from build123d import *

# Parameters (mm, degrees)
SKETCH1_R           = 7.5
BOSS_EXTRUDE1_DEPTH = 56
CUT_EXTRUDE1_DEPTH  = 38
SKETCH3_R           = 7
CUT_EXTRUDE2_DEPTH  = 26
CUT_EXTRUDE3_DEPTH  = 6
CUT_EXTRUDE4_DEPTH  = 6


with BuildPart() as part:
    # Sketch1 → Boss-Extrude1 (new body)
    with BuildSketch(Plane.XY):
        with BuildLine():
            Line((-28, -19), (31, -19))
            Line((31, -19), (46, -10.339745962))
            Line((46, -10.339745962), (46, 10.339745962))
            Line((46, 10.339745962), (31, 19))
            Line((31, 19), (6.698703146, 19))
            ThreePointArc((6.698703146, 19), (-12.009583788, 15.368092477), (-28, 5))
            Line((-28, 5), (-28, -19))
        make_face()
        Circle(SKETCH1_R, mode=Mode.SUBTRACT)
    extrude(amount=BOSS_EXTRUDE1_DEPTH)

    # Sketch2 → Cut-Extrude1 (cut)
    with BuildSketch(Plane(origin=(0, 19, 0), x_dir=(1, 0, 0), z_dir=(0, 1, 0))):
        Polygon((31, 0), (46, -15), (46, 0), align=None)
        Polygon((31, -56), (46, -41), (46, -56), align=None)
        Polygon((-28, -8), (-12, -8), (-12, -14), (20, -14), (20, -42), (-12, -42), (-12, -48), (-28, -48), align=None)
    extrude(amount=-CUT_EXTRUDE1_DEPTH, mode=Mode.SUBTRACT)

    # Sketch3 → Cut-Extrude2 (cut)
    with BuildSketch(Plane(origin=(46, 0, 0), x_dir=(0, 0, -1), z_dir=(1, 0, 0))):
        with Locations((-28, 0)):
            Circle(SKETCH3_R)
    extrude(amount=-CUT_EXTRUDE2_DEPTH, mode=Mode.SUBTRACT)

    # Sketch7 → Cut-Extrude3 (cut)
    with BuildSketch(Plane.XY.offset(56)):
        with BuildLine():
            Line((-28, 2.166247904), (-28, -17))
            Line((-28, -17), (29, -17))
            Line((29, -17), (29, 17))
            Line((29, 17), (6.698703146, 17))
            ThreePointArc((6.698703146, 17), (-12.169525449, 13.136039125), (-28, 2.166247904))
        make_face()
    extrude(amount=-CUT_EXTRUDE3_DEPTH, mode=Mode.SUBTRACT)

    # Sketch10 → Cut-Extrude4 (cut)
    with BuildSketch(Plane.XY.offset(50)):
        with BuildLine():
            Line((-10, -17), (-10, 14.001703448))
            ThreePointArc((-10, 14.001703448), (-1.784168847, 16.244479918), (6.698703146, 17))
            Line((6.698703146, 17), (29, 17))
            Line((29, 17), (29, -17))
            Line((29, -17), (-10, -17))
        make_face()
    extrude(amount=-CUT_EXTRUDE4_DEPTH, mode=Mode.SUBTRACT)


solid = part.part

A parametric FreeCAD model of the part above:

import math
import FreeCAD as App
import Part
import Sketcher

V = App.Vector
Q = App.Units.Quantity


def add_polygon(sketch, points):
    """Adds a closed chain of lines whose ends are joined by coincident constraints."""
    first, n = sketch.GeometryCount, len(points)
    for a, b in zip(points, points[1:] + points[:1]):
        sketch.addGeometry(Part.LineSegment(App.Vector(*a, 0), App.Vector(*b, 0)), False)
    for i in range(n):
        sketch.addConstraint(Sketcher.Constraint("Coincident", first + i, 2, first + (i + 1) % n, 1))

doc = App.newDocument("Part")
body = doc.addObject("PartDesign::Body", "Body")

# Sketch on XY plane
sketch1 = body.newObject("Sketcher::SketchObject", "Sketch")
sketch1.AttachmentSupport = (doc.getObject("XY_Plane"), [""])
sketch1.MapMode = "FlatFace"
sketch1.addGeometry([
    Part.LineSegment(V(-28, -19, 0), V(31, -19, 0)),  # 0
    Part.LineSegment(V(31, -19, 0), V(46, -10.339746, 0)),  # 1
    Part.LineSegment(V(46, -10.339746, 0), V(46, 10.339746, 0)),  # 2
    Part.LineSegment(V(46, 10.339746, 0), V(31, 19, 0)),  # 3
    Part.LineSegment(V(31, 19, 0), V(6.698703, 19, 0)),  # 4
    Part.ArcOfCircle(Part.Circle(V(6.698703, -31, 0), V(0, 0, 1), 50), math.radians(90), math.radians(133.94552)),  # 5
    Part.LineSegment(V(-28, 5, 0), V(-28, -19, 0)),  # 6
    Part.Circle(V(0, 0, 0), V(0, 0, 1), 7.5),  # 7
], False)
sketch1.addConstraint([
    Sketcher.Constraint("Coincident", 0, 2, 1, 1),
    Sketcher.Constraint("Coincident", 1, 2, 2, 1),
    Sketcher.Constraint("Coincident", 2, 2, 3, 1),
    Sketcher.Constraint("Coincident", 3, 2, 4, 1),
    Sketcher.Constraint("Tangent", 4, 2, 5, 1),
    Sketcher.Constraint("Coincident", 5, 2, 6, 1),
    Sketcher.Constraint("Coincident", 6, 2, 0, 1),
    Sketcher.Constraint("Horizontal", 0),
    Sketcher.Constraint("Vertical", 2),
    Sketcher.Constraint("Horizontal", 4),
    Sketcher.Constraint("Vertical", 6),
    Sketcher.Constraint("Coincident", 7, 3, -1, 1),
    Sketcher.Constraint("Symmetric", 0, 2, 3, 2, -1),
    Sketcher.Constraint("Equal", 1, 3),
    Sketcher.Constraint("Diameter", 7, 15.0),
    Sketcher.Constraint("Radius", 5, 50.0),
    Sketcher.Constraint("DistanceX", 0, 1, 0, 2, 59.0),
    Sketcher.Constraint("DistanceY", 6, 2, 6, 1, 24.0),
    Sketcher.Constraint("Angle", 1, Q("30 deg")),
    Sketcher.Constraint("DistanceY", 5, 3, -1, 1, 31.0),
    Sketcher.Constraint("DistanceX", -1, 1, 0, 2, 31.0),
    Sketcher.Constraint("DistanceX", -1, 1, 1, 2, 46.0),
])
pad1 = body.newObject("PartDesign::Pad", "Pad")
pad1.Profile = sketch1
pad1.Length = 56

# Sketch on XZ plane
sketch2 = body.newObject("Sketcher::SketchObject", "Sketch001")
sketch2.AttachmentSupport = (doc.getObject("XZ_Plane"), [""])
sketch2.MapMode = "FlatFace"
sketch2.AttachmentOffset = App.Placement(V(0, 0, -19), App.Rotation())
add_polygon(sketch2, [(31, 0), (46, 15), (46, 0)])  # lines 0-2
add_polygon(sketch2, [(46, 41), (31, 56), (46, 56)])  # lines 3-5
add_polygon(sketch2, [(-12, 8), (-28, 8), (-28, 48), (-12, 48), (-12, 42), (20, 42), (20, 14), (-12, 14)])  # lines 6-13
sketch2.addConstraint([
    Sketcher.Constraint("Vertical", 1),
    Sketcher.Constraint("Horizontal", 2),
    Sketcher.Constraint("Horizontal", 4),
    Sketcher.Constraint("Vertical", 5),
    Sketcher.Constraint("Horizontal", 6),
    Sketcher.Constraint("Vertical", 7),
    Sketcher.Constraint("Horizontal", 8),
    Sketcher.Constraint("Vertical", 9),
    Sketcher.Constraint("Horizontal", 10),
    Sketcher.Constraint("Vertical", 11),
    Sketcher.Constraint("Horizontal", 12),
    Sketcher.Constraint("Vertical", 13),
    Sketcher.Constraint("PointOnObject", 1, 2, -1),
    Sketcher.Constraint("Perpendicular", 0, 3),
    Sketcher.Constraint("Vertical", 2, 2, 3, 2),
    Sketcher.Constraint("Vertical", 1, 2, 4, 2),
    Sketcher.Constraint("Vertical", 9, 2, 12, 2),
    Sketcher.Constraint("Equal", 4, 1),
    Sketcher.Constraint("Equal", 9, 13),
    Sketcher.Constraint("DistanceX", 2, 2, 2, 1, 15.0),
    Sketcher.Constraint("DistanceX", 6, 2, 6, 1, 16.0),
    Sketcher.Constraint("DistanceX", 10, 1, 10, 2, 32.0),
    Sketcher.Constraint("DistanceY", 7, 1, 7, 2, 40.0),
    Sketcher.Constraint("DistanceY", 9, 2, 9, 1, 6.0),
    Sketcher.Constraint("DistanceX", -1, 1, 0, 2, 46.0),
    Sketcher.Constraint("DistanceY", -1, 1, 3, 2, 56.0),
    Sketcher.Constraint("DistanceX", 6, 2, -1, 1, 28.0),
    Sketcher.Constraint("DistanceY", -1, 1, 6, 2, 8.0),
])
pocket1 = body.newObject("PartDesign::Pocket", "Pocket")
pocket1.Profile = sketch2
pocket1.Length = 38
pocket1.Reversed = True

# Sketch on YZ plane
sketch3 = body.newObject("Sketcher::SketchObject", "Sketch002")
sketch3.AttachmentSupport = (doc.getObject("YZ_Plane"), [""])
sketch3.MapMode = "FlatFace"
sketch3.AttachmentOffset = App.Placement(V(0, 0, 46), App.Rotation())
sketch3.addGeometry(Part.Circle(V(0, 28, 0), V(0, 0, 1), 7), False)
sketch3.addConstraint([
    Sketcher.Constraint("PointOnObject", 0, 3, -2),
    Sketcher.Constraint("Diameter", 0, 14.0),
    Sketcher.Constraint("DistanceY", -1, 1, 0, 3, 28.0),
])
pocket2 = body.newObject("PartDesign::Pocket", "Pocket001")
pocket2.Profile = sketch3
pocket2.Length = 26

# Sketch on XY plane
sketch4 = body.newObject("Sketcher::SketchObject", "Sketch003")
sketch4.AttachmentSupport = (doc.getObject("XY_Plane"), [""])
sketch4.MapMode = "FlatFace"
sketch4.AttachmentOffset = App.Placement(V(0, 0, 56), App.Rotation())
sketch4.addGeometry([
    Part.LineSegment(V(-28, 2.166248, 0), V(-28, -17, 0)),  # 0
    Part.LineSegment(V(-28, -17, 0), V(29, -17, 0)),  # 1
    Part.LineSegment(V(29, -17, 0), V(29, 17, 0)),  # 2
    Part.LineSegment(V(29, 17, 0), V(6.698703, 17, 0)),  # 3
    Part.ArcOfCircle(Part.Circle(V(6.698703, -31, 0), V(0, 0, 1), 48), math.radians(90), math.radians(136.293573)),  # 4
], False)
sketch4.addConstraint([
    Sketcher.Constraint("Coincident", 0, 2, 1, 1),
    Sketcher.Constraint("Coincident", 1, 2, 2, 1),
    Sketcher.Constraint("Coincident", 2, 2, 3, 1),
    Sketcher.Constraint("Tangent", 3, 2, 4, 1),
    Sketcher.Constraint("Coincident", 4, 2, 0, 1),
    Sketcher.Constraint("Vertical", 0),
    Sketcher.Constraint("Horizontal", 1),
    Sketcher.Constraint("Vertical", 2),
    Sketcher.Constraint("Horizontal", 3),
    Sketcher.Constraint("Radius", 4, 48.0),
    Sketcher.Constraint("DistanceX", 1, 1, 1, 2, 57.0),
    Sketcher.Constraint("DistanceY", 2, 1, 2, 2, 34.0),
    Sketcher.Constraint("DistanceY", 4, 3, -1, 1, 31.0),
    Sketcher.Constraint("DistanceX", 0, 2, -1, 1, 28.0),
    Sketcher.Constraint("DistanceX", 3, 2, 3, 1, 22.301297),
])
pocket3 = body.newObject("PartDesign::Pocket", "Pocket002")
pocket3.Profile = sketch4
pocket3.Length = 6

# Sketch on XY plane
sketch5 = body.newObject("Sketcher::SketchObject", "Sketch004")
sketch5.AttachmentSupport = (doc.getObject("XY_Plane"), [""])
sketch5.MapMode = "FlatFace"
sketch5.AttachmentOffset = App.Placement(V(0, 0, 50), App.Rotation())
sketch5.addGeometry([
    Part.LineSegment(V(-10, 14.001703, 0), V(-10, -17, 0)),  # 0
    Part.LineSegment(V(-10, -17, 0), V(29, -17, 0)),  # 1
    Part.LineSegment(V(29, -17, 0), V(29, 17, 0)),  # 2
    Part.LineSegment(V(29, 17, 0), V(6.698703, 17, 0)),  # 3
    Part.ArcOfCircle(Part.Circle(V(6.698703, -31, 0), V(0, 0, 1), 48), math.radians(90), math.radians(110.358291)),  # 4
], False)
sketch5.addConstraint([
    Sketcher.Constraint("Coincident", 0, 2, 1, 1),
    Sketcher.Constraint("Coincident", 1, 2, 2, 1),
    Sketcher.Constraint("Coincident", 2, 2, 3, 1),
    Sketcher.Constraint("Tangent", 3, 2, 4, 1),
    Sketcher.Constraint("Coincident", 4, 2, 0, 1),
    Sketcher.Constraint("Vertical", 0),
    Sketcher.Constraint("Horizontal", 1),
    Sketcher.Constraint("Vertical", 2),
    Sketcher.Constraint("Horizontal", 3),
    Sketcher.Constraint("Radius", 4, 48.0),
    Sketcher.Constraint("DistanceX", 1, 1, 1, 2, 39.0),
    Sketcher.Constraint("DistanceY", 2, 1, 2, 2, 34.0),
    Sketcher.Constraint("DistanceY", 4, 3, -1, 1, 31.0),
    Sketcher.Constraint("DistanceX", 0, 2, -1, 1, 10.0),
    Sketcher.Constraint("DistanceX", 3, 2, 3, 1, 22.301297),
])
pocket4 = body.newObject("PartDesign::Pocket", "Pocket003")
pocket4.Profile = sketch5
pocket4.Length = 6

doc.recompute()
